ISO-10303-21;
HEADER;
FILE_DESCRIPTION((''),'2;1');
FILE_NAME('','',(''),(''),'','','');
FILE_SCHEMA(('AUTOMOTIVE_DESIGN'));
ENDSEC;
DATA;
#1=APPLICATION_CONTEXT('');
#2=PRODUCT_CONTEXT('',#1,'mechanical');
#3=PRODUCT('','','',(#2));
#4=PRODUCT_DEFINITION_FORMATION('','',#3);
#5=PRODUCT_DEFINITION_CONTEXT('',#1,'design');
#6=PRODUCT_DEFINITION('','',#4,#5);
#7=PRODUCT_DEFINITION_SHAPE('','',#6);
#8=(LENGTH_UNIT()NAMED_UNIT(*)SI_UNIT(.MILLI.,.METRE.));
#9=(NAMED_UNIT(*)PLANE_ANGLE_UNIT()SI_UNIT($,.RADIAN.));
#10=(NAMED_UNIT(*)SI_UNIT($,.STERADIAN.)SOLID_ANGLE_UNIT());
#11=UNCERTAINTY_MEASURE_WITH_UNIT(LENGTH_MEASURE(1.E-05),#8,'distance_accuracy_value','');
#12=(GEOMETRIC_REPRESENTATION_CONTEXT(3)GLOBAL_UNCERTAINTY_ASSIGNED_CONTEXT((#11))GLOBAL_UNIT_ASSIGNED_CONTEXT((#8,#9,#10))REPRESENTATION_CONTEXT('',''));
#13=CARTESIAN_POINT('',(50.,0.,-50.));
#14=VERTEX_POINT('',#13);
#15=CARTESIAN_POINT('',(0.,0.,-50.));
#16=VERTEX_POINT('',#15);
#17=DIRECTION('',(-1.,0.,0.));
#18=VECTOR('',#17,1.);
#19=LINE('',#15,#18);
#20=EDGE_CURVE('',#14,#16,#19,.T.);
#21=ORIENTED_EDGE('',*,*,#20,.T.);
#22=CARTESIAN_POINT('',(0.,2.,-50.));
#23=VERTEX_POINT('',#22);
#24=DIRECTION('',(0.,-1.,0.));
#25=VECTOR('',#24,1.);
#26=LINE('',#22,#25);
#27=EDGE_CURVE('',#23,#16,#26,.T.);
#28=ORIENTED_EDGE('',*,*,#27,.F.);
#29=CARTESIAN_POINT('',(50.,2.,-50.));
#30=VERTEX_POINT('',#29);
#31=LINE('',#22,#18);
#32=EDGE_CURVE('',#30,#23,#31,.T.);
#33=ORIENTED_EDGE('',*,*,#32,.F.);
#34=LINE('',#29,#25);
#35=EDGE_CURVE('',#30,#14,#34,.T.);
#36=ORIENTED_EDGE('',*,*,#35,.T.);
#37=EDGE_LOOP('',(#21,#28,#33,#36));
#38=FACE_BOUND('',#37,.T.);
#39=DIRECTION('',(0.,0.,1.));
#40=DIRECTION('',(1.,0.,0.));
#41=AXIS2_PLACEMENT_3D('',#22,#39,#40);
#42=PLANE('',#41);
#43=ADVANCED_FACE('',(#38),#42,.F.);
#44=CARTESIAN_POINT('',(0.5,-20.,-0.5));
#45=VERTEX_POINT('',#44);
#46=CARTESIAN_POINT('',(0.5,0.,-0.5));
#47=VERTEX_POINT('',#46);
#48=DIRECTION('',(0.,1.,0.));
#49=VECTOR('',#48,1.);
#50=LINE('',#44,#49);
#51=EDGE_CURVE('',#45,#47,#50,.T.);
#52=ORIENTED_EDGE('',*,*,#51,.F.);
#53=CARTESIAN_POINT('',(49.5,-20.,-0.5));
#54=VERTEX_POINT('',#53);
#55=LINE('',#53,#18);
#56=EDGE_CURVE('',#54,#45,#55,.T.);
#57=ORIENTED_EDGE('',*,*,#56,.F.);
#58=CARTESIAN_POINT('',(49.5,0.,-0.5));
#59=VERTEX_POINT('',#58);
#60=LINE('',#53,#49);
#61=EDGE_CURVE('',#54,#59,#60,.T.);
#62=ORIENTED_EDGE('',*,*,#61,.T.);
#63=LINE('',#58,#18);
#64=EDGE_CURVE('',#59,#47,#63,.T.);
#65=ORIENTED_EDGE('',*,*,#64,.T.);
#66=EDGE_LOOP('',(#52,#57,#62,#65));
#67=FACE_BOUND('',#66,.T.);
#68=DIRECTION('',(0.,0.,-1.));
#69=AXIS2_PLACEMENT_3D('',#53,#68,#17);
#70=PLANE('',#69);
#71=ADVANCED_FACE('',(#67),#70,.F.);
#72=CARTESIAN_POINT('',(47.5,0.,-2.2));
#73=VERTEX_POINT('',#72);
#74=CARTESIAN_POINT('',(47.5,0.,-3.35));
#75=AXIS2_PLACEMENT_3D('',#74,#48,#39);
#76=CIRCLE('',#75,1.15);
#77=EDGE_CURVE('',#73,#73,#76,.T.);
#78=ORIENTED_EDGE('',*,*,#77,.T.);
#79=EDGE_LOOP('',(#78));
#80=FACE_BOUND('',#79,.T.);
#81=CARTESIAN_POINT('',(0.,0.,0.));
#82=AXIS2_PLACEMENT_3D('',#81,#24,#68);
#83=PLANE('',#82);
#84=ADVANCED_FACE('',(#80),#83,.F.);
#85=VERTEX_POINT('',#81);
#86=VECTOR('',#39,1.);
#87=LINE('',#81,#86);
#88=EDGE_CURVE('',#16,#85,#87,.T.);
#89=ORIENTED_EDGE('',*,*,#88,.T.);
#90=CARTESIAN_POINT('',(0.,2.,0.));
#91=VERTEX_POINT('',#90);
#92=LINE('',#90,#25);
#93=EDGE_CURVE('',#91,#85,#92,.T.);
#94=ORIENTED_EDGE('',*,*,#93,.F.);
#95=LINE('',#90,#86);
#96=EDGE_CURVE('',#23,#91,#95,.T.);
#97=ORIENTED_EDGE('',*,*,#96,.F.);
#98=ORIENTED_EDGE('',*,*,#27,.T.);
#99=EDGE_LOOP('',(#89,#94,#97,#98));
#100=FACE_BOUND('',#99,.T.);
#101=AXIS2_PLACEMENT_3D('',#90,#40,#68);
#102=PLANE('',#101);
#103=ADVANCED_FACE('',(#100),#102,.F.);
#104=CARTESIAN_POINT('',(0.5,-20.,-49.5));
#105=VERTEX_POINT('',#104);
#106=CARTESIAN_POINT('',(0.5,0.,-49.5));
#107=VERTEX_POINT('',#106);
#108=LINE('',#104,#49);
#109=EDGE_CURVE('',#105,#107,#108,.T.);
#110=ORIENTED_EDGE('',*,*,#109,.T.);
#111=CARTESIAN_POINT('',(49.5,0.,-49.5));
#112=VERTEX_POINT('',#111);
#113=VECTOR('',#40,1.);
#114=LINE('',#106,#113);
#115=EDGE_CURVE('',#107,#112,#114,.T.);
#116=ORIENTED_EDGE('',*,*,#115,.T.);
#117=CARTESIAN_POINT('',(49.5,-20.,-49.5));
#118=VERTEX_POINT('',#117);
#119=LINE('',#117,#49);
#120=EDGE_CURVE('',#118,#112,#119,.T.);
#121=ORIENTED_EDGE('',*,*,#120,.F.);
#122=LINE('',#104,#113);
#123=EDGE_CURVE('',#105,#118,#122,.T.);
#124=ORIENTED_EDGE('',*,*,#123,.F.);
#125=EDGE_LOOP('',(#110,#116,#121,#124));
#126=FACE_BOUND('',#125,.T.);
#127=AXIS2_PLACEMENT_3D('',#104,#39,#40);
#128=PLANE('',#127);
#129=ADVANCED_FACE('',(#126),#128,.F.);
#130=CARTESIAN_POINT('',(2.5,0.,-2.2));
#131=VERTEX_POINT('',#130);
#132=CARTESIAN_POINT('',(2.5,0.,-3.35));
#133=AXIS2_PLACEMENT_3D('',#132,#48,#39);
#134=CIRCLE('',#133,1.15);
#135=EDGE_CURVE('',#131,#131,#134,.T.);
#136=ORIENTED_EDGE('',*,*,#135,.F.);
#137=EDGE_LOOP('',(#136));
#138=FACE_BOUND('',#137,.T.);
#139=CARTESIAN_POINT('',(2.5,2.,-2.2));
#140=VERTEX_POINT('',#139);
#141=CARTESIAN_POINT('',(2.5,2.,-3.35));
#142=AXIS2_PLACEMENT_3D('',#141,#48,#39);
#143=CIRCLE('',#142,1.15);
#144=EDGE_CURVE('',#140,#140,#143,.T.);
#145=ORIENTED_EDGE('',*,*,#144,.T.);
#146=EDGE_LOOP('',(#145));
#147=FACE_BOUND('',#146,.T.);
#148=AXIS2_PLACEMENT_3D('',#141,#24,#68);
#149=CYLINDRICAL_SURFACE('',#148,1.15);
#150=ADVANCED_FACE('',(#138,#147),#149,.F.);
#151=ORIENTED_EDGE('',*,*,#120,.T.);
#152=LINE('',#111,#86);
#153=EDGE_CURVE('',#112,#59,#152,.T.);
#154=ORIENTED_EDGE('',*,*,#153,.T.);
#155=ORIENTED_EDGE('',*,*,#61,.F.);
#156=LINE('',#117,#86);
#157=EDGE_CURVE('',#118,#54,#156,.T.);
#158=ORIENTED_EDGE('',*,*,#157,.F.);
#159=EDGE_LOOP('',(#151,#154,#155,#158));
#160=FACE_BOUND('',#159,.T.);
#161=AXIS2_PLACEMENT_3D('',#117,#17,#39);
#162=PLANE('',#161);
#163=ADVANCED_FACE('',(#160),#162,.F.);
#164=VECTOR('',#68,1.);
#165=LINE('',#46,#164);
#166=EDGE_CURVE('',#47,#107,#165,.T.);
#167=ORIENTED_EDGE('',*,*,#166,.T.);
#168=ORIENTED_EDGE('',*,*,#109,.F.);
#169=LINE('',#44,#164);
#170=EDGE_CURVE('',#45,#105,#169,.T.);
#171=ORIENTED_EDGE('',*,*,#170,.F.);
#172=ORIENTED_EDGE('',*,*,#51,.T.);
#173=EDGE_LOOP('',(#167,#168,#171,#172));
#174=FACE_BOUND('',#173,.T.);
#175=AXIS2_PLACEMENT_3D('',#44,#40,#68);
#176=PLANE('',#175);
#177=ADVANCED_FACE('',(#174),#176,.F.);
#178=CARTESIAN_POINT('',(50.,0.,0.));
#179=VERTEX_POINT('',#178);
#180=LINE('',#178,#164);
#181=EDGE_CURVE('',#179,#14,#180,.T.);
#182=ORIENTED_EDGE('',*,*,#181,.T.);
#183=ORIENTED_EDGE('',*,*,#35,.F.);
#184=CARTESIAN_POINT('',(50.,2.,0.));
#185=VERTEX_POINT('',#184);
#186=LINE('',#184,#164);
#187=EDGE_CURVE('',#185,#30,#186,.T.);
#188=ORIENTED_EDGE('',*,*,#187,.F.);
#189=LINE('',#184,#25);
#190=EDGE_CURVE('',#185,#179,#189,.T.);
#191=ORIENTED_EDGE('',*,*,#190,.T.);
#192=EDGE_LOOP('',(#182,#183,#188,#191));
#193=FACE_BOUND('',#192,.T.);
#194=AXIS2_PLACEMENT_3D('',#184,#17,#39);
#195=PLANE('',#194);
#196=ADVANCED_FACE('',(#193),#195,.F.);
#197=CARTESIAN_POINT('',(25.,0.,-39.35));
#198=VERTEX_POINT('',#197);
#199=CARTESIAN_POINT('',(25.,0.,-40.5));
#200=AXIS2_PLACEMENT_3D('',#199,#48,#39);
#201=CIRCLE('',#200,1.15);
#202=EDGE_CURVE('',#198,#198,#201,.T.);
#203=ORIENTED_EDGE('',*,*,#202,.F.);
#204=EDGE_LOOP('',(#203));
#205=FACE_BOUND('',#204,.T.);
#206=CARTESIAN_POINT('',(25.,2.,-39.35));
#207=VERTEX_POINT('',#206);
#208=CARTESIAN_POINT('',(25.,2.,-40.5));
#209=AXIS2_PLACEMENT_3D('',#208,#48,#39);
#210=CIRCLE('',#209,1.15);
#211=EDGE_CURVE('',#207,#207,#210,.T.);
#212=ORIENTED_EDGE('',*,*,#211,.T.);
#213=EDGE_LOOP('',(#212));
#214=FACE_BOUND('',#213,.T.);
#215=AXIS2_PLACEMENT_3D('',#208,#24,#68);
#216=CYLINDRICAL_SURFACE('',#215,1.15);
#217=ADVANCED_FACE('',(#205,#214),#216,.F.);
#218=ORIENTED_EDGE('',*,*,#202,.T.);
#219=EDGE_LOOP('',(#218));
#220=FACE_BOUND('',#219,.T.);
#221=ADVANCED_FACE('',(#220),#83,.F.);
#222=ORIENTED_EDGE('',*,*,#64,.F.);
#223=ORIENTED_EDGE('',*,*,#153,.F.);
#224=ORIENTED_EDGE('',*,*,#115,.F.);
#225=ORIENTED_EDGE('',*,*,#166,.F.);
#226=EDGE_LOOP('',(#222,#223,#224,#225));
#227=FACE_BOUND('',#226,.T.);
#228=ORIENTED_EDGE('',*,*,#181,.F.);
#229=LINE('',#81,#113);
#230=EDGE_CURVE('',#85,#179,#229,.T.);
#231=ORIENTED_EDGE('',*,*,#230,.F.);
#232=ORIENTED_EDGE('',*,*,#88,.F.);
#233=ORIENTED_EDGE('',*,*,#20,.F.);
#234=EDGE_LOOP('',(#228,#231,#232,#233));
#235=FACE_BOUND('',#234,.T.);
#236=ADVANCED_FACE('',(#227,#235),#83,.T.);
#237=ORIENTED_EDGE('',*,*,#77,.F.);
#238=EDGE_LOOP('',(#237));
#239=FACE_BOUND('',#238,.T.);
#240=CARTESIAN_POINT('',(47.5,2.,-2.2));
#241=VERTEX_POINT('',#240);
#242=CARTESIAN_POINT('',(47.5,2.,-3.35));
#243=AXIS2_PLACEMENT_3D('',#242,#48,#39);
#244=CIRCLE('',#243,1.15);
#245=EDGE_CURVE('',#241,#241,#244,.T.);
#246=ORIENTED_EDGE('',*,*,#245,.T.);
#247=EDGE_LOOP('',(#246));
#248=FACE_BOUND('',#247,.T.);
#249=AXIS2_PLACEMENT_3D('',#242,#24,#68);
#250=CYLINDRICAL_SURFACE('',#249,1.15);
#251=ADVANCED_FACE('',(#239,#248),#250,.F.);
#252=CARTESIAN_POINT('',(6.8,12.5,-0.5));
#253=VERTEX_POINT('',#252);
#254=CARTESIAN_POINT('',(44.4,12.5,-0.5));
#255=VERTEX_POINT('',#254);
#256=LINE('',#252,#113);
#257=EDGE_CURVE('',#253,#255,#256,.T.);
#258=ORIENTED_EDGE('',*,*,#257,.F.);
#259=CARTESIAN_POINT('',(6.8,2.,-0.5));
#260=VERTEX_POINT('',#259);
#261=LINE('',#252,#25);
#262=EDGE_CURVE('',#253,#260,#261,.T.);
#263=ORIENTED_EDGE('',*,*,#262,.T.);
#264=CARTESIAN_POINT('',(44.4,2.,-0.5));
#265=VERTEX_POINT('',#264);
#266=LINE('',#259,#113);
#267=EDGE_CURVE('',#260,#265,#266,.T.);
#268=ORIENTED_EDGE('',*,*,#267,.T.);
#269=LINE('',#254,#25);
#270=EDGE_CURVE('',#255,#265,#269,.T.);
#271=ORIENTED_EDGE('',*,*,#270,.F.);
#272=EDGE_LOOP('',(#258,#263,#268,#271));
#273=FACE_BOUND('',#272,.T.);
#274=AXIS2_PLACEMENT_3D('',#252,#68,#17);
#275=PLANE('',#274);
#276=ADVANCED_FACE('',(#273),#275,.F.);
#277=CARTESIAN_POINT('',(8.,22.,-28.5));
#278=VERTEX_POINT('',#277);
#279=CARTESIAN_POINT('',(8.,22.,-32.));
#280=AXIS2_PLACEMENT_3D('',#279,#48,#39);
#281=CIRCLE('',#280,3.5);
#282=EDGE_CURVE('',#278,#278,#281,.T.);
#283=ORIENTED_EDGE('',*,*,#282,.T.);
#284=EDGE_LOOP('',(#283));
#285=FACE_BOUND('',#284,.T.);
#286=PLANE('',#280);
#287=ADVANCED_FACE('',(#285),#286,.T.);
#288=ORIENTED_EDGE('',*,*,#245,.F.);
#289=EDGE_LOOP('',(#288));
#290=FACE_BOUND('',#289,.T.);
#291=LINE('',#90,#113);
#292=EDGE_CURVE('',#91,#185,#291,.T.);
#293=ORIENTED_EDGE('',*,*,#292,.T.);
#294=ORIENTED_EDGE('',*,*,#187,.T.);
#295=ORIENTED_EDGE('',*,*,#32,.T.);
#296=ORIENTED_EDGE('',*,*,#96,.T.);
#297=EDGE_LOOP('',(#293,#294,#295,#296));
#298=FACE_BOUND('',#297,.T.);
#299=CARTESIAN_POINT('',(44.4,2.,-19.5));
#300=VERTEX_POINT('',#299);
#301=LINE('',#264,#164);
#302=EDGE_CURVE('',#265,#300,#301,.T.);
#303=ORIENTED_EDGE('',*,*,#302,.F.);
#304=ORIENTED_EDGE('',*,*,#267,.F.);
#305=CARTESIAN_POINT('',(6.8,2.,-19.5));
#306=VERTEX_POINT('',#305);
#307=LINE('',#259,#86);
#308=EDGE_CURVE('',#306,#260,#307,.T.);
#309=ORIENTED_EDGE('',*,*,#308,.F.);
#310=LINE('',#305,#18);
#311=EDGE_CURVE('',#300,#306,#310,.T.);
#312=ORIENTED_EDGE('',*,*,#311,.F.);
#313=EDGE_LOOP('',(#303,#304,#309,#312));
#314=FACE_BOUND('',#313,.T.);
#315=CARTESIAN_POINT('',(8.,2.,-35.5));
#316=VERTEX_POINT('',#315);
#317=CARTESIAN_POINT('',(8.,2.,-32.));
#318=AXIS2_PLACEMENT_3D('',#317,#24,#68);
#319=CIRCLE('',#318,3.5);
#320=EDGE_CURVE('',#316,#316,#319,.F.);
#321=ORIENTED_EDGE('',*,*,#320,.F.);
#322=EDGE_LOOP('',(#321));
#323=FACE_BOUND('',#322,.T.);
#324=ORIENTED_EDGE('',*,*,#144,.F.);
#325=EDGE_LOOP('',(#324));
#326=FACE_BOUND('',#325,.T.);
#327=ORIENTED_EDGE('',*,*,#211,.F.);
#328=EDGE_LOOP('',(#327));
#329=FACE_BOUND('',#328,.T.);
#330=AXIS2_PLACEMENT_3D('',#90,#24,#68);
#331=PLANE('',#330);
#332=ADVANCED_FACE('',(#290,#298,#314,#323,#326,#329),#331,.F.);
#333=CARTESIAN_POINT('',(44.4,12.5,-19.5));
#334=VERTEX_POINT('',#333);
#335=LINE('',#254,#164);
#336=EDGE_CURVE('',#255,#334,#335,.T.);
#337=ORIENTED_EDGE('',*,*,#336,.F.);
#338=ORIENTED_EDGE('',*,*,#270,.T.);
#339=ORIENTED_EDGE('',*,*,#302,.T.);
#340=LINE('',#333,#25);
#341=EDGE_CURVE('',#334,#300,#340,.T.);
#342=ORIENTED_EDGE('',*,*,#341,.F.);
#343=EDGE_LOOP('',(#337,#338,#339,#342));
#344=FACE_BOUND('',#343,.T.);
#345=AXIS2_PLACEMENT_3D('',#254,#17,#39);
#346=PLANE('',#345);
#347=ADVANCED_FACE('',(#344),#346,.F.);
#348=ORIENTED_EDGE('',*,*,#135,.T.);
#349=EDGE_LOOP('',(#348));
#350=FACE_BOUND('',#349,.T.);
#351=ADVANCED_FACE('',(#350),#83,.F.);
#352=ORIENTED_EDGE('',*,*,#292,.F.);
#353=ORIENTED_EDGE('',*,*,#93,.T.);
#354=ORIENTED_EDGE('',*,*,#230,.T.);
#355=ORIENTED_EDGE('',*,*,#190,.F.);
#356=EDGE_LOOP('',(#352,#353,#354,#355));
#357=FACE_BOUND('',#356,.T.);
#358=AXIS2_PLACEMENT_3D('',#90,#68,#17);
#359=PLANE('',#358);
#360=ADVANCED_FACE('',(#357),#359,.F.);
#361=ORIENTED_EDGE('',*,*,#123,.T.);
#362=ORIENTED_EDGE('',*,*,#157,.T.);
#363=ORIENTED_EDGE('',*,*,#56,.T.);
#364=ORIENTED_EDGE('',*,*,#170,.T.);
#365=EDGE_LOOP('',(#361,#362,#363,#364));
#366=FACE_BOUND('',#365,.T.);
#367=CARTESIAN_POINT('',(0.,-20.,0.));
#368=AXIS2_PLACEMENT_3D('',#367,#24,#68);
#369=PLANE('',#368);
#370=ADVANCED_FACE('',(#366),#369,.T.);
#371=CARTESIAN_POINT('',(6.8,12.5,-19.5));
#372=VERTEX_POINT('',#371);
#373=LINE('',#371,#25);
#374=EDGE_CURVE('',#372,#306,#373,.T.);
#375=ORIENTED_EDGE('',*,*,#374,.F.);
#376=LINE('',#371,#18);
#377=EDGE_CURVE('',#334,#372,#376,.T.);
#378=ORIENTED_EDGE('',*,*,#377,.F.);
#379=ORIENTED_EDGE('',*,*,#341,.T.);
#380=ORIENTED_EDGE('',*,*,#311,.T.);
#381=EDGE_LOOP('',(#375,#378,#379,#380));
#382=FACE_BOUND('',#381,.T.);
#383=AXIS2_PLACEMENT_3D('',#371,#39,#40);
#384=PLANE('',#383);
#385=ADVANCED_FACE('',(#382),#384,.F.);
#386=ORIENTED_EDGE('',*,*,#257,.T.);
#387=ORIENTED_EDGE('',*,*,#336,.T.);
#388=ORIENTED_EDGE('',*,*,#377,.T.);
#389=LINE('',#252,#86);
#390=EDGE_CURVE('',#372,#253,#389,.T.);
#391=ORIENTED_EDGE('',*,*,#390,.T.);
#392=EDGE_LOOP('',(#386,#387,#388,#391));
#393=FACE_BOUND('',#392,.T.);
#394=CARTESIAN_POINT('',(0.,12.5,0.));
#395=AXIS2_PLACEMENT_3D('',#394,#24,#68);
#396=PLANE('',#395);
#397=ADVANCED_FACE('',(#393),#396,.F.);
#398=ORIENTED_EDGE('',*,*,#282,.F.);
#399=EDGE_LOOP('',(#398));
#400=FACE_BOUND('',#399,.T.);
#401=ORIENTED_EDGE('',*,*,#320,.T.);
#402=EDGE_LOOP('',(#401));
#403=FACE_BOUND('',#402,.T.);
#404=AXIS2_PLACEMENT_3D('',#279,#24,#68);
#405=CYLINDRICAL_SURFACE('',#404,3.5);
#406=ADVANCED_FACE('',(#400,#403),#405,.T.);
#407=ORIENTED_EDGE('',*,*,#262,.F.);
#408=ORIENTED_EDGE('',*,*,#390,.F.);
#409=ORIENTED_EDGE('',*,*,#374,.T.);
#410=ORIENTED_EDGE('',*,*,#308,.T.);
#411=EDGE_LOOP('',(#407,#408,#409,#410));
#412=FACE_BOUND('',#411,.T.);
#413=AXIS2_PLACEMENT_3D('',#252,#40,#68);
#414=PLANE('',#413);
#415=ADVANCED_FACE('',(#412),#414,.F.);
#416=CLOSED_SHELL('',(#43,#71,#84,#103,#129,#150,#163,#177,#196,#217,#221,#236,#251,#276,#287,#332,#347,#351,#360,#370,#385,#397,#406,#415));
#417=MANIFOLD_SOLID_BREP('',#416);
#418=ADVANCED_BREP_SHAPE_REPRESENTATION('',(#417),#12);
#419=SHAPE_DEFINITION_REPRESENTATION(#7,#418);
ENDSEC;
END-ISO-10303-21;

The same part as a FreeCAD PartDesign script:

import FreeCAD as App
import Part
import Sketcher

V = App.Vector


def add_polygon(sketch, points):
    """Adds a closed chain of lines whose ends are joined by coincident constraints."""
    first, n = sketch.GeometryCount, len(points)
    for a, b in zip(points, points[1:] + points[:1]):
        sketch.addGeometry(Part.LineSegment(App.Vector(*a, 0), App.Vector(*b, 0)), False)
    for i in range(n):
        sketch.addConstraint(Sketcher.Constraint("Coincident", first + i, 2, first + (i + 1) % n, 1))

doc = App.newDocument("Part")
params = doc.addObject("Spreadsheet::Sheet", "Params")
for row, (alias, value) in enumerate([
    ("sketch1_diameter", "2.3 mm"),
    ("sketch1_width", "50 mm"),
    ("pad1_length", "2 mm"),
    ("sketch2_height", "19 mm"),
    ("sketch2_width", "37.6 mm"),
    ("pad2_length", "10.5 mm"),
    ("sketch3_diameter", "7 mm"),
    ("pad3_length", "20 mm"),
    ("sketch4_width", "49 mm"),
    ("pad4_length", "20 mm"),
], start=1):
    params.set(f"A{row}", alias)
    params.set(f"B{row}", "=" + value)
    params.setAlias(f"B{row}", alias)

body = doc.addObject("PartDesign::Body", "Body")

sketch1 = body.newObject("Sketcher::SketchObject", "Sketch")
sketch1.AttachmentSupport = (doc.getObject("XZ_Plane"), [""])
sketch1.MapMode = "FlatFace"
add_polygon(sketch1, [(0, -50), (0, 0), (50, 0), (50, -50)])
sketch1.addGeometry(Part.Circle(V(2.5, -3.4, 0), V(0, 0, 1), 1.1), False)
sketch1.addGeometry(Part.Circle(V(47.5, -3.4, 0), V(0, 0, 1), 1.1), False)
sketch1.addGeometry(Part.Circle(V(25, -40.5, 0), V(0, 0, 1), 1.1), False)
sketch1.addConstraint([
    Sketcher.Constraint("Vertical", 0),
    Sketcher.Constraint("Horizontal", 1),
    Sketcher.Constraint("Vertical", 2),
    Sketcher.Constraint("Horizontal", 3),
    Sketcher.Constraint("Coincident", 0, 2, -1, 1),
    Sketcher.Constraint("Equal", 4, 5),
    Sketcher.Constraint("Equal", 5, 6),
    Sketcher.Constraint("Horizontal", 4, 3, 5, 3),
    Sketcher.Constraint("Equal", 3, 0),
    Sketcher.Constraint("Diameter", 4, 2.3),
    Sketcher.Constraint("DistanceX", 1, 1, 1, 2, 50.0),
    Sketcher.Constraint("DistanceX", -1, 1, 6, 3, 25.0),
    Sketcher.Constraint("DistanceX", 4, 3, 5, 3, 45.0),
    Sketcher.Constraint("DistanceX", -1, 1, 4, 3, 2.5),
    Sketcher.Constraint("DistanceY", 6, 3, -1, 1, 40.5),
    Sketcher.Constraint("DistanceY", 4, 3, -1, 1, 3.35),
])
sketch1.setExpression("Constraints[13]", "Params.sketch1_diameter")
sketch1.setExpression("Constraints[14]", "Params.sketch1_width")
pad1 = body.newObject("PartDesign::Pad", "Pad")
pad1.Profile = sketch1
pad1.setExpression("Length", "Params.pad1_length")
pad1.Reversed = True

sketch2 = body.newObject("Sketcher::SketchObject", "Sketch001")
sketch2.AttachmentSupport = (doc.getObject("XZ_Plane"), [""])
sketch2.MapMode = "FlatFace"
sketch2.AttachmentOffset = App.Placement(V(0, 0, -2), App.Rotation())
add_polygon(sketch2, [(7, -20), (7, 0), (44, 0), (44, -20)])
sketch2.addConstraint([
    Sketcher.Constraint("Vertical", 0),
    Sketcher.Constraint("Horizontal", 1),
    Sketcher.Constraint("Vertical", 2),
    Sketcher.Constraint("Horizontal", 3),
    Sketcher.Constraint("DistanceY", 0, 1, 0, 2, 19.0),
    Sketcher.Constraint("DistanceX", 1, 1, 1, 2, 37.6),
    Sketcher.Constraint("DistanceX", -1, 1, 0, 2, 6.8),
    Sketcher.Constraint("DistanceY", 0, 2, -1, 1, 0.5),
])
sketch2.setExpression("Constraints[8]", "Params.sketch2_height")
sketch2.setExpression("Constraints[9]", "Params.sketch2_width")
pad2 = body.newObject("PartDesign::Pad", "Pad001")
pad2.Profile = sketch2
pad2.setExpression("Length", "Params.pad2_length")
pad2.Reversed = True

sketch3 = body.newObject("Sketcher::SketchObject", "Sketch002")
sketch3.AttachmentSupport = (doc.getObject("XZ_Plane"), [""])
sketch3.MapMode = "FlatFace"
sketch3.AttachmentOffset = App.Placement(V(0, 0, -2), App.Rotation())
sketch3.addGeometry(Part.Circle(V(8, -32, 0), V(0, 0, 1), 3.5), False)
sketch3.addConstraint([
    Sketcher.Constraint("Diameter", 0, 7.0),
    Sketcher.Constraint("DistanceX", -1, 1, 0, 3, 8.0),
    Sketcher.Constraint("DistanceY", 0, 3, -1, 1, 32.0),
])
sketch3.setExpression("Constraints[0]", "Params.sketch3_diameter")
pad3 = body.newObject("PartDesign::Pad", "Pad002")
pad3.Profile = sketch3
pad3.setExpression("Length", "Params.pad3_length")
pad3.Reversed = True

sketch4 = body.newObject("Sketcher::SketchObject", "Sketch003")
sketch4.AttachmentSupport = (doc.getObject("XZ_Plane"), [""])
sketch4.MapMode = "FlatFace"
add_polygon(sketch4, [(0, 0), (0, -50), (50, -50), (50, 0)])
sketch4.addConstraint([
    Sketcher.Constraint("Vertical", 0),
    Sketcher.Constraint("Horizontal", 1),
    Sketcher.Constraint("Vertical", 2),
    Sketcher.Constraint("Horizontal", 3),
    Sketcher.Constraint("Equal", 3, 0),
    Sketcher.Constraint("DistanceX", 1, 1, 1, 2, 49.0),
    Sketcher.Constraint("DistanceX", -1, 1, 0, 2, 0.5),
    Sketcher.Constraint("DistanceY", 0, 2, -1, 1, 49.5),
])
sketch4.setExpression("Constraints[9]", "Params.sketch4_width")
pad4 = body.newObject("PartDesign::Pad", "Pad003")
pad4.Profile = sketch4
pad4.setExpression("Length", "Params.pad4_length")

doc.recompute()
